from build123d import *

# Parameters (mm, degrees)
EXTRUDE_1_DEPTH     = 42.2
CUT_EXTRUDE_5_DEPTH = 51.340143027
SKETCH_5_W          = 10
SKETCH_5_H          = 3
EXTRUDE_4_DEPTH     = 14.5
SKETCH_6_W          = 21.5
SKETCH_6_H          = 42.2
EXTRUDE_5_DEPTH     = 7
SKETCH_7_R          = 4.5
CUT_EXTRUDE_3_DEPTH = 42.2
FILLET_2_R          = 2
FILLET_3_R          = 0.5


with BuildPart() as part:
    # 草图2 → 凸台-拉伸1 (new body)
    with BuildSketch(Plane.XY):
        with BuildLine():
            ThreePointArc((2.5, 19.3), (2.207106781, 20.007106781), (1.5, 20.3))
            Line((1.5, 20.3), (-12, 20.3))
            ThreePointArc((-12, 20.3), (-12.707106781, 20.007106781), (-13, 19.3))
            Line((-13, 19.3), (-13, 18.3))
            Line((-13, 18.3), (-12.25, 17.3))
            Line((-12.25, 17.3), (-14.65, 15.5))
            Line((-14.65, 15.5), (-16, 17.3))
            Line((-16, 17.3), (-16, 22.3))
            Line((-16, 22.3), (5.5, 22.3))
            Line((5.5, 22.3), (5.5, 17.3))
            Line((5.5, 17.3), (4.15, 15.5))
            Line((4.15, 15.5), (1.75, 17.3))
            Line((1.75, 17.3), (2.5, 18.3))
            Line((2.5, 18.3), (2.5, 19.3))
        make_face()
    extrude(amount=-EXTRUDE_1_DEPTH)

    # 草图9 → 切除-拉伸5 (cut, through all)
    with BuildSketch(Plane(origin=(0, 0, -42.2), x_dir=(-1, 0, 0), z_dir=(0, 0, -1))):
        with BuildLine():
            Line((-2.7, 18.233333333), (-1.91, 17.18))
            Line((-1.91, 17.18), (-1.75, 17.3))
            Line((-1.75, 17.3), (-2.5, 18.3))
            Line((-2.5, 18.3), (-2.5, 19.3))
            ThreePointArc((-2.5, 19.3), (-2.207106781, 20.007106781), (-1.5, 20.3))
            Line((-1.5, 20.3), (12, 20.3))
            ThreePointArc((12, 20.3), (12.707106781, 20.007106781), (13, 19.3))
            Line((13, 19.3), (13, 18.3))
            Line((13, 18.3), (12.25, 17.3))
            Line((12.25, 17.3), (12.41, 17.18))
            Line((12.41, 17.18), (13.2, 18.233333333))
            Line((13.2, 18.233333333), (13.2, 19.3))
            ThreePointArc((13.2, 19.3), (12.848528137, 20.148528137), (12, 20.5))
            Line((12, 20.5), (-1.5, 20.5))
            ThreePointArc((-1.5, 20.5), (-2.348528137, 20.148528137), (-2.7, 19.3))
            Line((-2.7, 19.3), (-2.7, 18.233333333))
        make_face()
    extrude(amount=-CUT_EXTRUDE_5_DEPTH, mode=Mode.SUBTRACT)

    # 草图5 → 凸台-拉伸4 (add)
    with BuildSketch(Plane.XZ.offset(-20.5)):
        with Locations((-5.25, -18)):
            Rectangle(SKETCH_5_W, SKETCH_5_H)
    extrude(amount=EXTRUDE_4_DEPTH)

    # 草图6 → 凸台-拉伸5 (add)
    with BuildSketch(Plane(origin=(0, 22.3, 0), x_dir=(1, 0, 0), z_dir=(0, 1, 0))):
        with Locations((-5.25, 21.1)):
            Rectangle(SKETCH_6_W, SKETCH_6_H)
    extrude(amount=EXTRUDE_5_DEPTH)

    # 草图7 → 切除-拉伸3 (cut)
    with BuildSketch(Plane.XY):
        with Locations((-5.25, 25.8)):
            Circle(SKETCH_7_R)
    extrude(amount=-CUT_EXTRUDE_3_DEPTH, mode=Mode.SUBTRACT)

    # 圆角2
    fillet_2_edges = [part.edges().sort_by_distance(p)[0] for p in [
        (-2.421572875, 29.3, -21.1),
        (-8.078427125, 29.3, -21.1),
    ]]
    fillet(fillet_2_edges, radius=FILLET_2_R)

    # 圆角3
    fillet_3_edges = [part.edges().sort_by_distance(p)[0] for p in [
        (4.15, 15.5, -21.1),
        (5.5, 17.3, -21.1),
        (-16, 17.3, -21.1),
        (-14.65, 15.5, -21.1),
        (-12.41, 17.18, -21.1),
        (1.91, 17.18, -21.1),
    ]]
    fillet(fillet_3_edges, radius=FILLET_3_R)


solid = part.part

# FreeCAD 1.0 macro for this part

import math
import FreeCAD as App
import Part
import Sketcher


def edges_at(feature, points):
    """Names of the edges that pass closest to the given points."""
    edges = feature.Shape.Edges
    near = lambda p: min(range(len(edges)), key=lambda i: edges[i].distToShape(Part.Vertex(*p))[0])
    return sorted({f"Edge{near(p) + 1}" for p in points})


def add_polygon(sketch, points):
    """Adds a closed chain of lines whose ends are joined by coincident constraints."""
    first, n = sketch.GeometryCount, len(points)
    for a, b in zip(points, points[1:] + points[:1]):
        sketch.addGeometry(Part.LineSegment(App.Vector(*a, 0), App.Vector(*b, 0)), False)
    for i in range(n):
        sketch.addConstraint(Sketcher.Constraint("Coincident", first + i, 2, first + (i + 1) % n, 1))

doc = App.newDocument("Part")
body = doc.addObject("PartDesign::Body", "Body")

sketch1 = doc.addObject("Sketcher::SketchObject", "Sketch")
body.addObject(sketch1)
sketch1.AttachmentSupport = (doc.XY_Plane, [""])
sketch1.MapMode = "FlatFace"
sketch1.addGeometry([
    Part.ArcOfCircle(Part.Circle(App.Vector(1.5, 19.3, 0), App.Vector(0, 0, 1), 1), math.radians(0), math.radians(90)),
    Part.LineSegment(App.Vector(2.5, 19.3, 0), App.Vector(2.5, 18.3, 0)),
    Part.LineSegment(App.Vector(2.5, 18.3, 0), App.Vector(1.8, 17.3, 0)),
    Part.LineSegment(App.Vector(1.8, 17.3, 0), App.Vector(4.2, 15.5, 0)),
    Part.LineSegment(App.Vector(4.2, 15.5, 0), App.Vector(5.5, 17.3, 0)),
    Part.LineSegment(App.Vector(5.5, 17.3, 0), App.Vector(5.5, 22.3, 0)),
    Part.LineSegment(App.Vector(5.5, 22.3, 0), App.Vector(-16, 22.3, 0)),
    Part.LineSegment(App.Vector(-16, 22.3, 0), App.Vector(-16, 17.3, 0)),
    Part.LineSegment(App.Vector(-16, 17.3, 0), App.Vector(-14.7, 15.5, 0)),
    Part.LineSegment(App.Vector(-14.7, 15.5, 0), App.Vector(-12.2, 17.3, 0)),
    Part.LineSegment(App.Vector(-12.2, 17.3, 0), App.Vector(-13, 18.3, 0)),
    Part.LineSegment(App.Vector(-13, 18.3, 0), App.Vector(-13, 19.3, 0)),
    Part.ArcOfCircle(Part.Circle(App.Vector(-12, 19.3, 0), App.Vector(0, 0, 1), 1), math.radians(90), math.radians(180)),
    Part.LineSegment(App.Vector(-12, 20.3, 0), App.Vector(1.5, 20.3, 0)),
], False)
sketch1.addConstraint([
    Sketcher.Constraint("Tangent", 0, 1, 1, 1),
    Sketcher.Constraint("Coincident", 1, 2, 2, 1),
    Sketcher.Constraint("Coincident", 2, 2, 3, 1),
    Sketcher.Constraint("Coincident", 3, 2, 4, 1),
    Sketcher.Constraint("Coincident", 4, 2, 5, 1),
    Sketcher.Constraint("Coincident", 5, 2, 6, 1),
    Sketcher.Constraint("Coincident", 6, 2, 7, 1),
    Sketcher.Constraint("Coincident", 7, 2, 8, 1),
    Sketcher.Constraint("Coincident", 8, 2, 9, 1),
    Sketcher.Constraint("Coincident", 9, 2, 10, 1),
    Sketcher.Constraint("Coincident", 10, 2, 11, 1),
    Sketcher.Constraint("Tangent", 11, 2, 12, 2),
    Sketcher.Constraint("Tangent", 12, 1, 13, 1),
    Sketcher.Constraint("Tangent", 13, 2, 0, 2),
    Sketcher.Constraint("Vertical", 1),
    Sketcher.Constraint("Vertical", 5),
    Sketcher.Constraint("Horizontal", 6),
    Sketcher.Constraint("Vertical", 7),
    Sketcher.Constraint("Vertical", 11),
    Sketcher.Constraint("Horizontal", 13),
    Sketcher.Constraint("Equal", 0, 12),
    Sketcher.Constraint("Perpendicular", 2, 3),
    Sketcher.Constraint("Perpendicular", 3, 4),
    Sketcher.Constraint("Perpendicular", 8, 9),
    Sketcher.Constraint("Perpendicular", 9, 10),
    Sketcher.Constraint("Horizontal", 2, 2, 4, 2),
    Sketcher.Constraint("Horizontal", 4, 2, 7, 2),
    Sketcher.Constraint("Horizontal", 3, 2, 8, 2),
    Sketcher.Constraint("Horizontal", 7, 2, 9, 2),
    Sketcher.Constraint("Horizontal", 1, 2, 10, 2),
    Sketcher.Constraint("Equal", 4, 8),
    Sketcher.Constraint("Radius", 0, 1.0),
    Sketcher.Constraint("DistanceY", 1, 2, 1, 1, 1.0),
    Sketcher.Constraint("DistanceY", 5, 1, 5, 2, 5.0),
    Sketcher.Constraint("Distance", 3, 3.0),
    Sketcher.Constraint("DistanceX", 6, 2, 6, 1, 21.5),
    Sketcher.Constraint("DistanceX", 13, 1, 13, 2, 13.5),
    Sketcher.Constraint("DistanceX", 12, 3, -1, 1, 12.0),
    Sketcher.Constraint("DistanceY", 2, 2, 1, 2, 1.0),
    Sketcher.Constraint("DistanceY", -1, 1, 0, 3, 19.3),
])
pad1 = doc.addObject("PartDesign::Pad", "Pad")
body.addObject(pad1)
pad1.Profile = sketch1
pad1.Length = 42.2
pad1.Reversed = True

sketch2 = doc.addObject("Sketcher::SketchObject", "Sketch001")
body.addObject(sketch2)
sketch2.AttachmentSupport = (doc.XY_Plane, [""])
sketch2.MapMode = "FlatFace"
sketch2.AttachmentOffset = App.Placement(App.Vector(0, 0, -42.2), App.Rotation())
sketch2.addGeometry([
    Part.LineSegment(App.Vector(2.7, 18.23, 0), App.Vector(1.91, 17.18, 0)),
    Part.LineSegment(App.Vector(1.91, 17.18, 0), App.Vector(1.75, 17.3, 0)),
    Part.LineSegment(App.Vector(1.75, 17.3, 0), App.Vector(2.5, 18.3, 0)),
    Part.LineSegment(App.Vector(2.5, 18.3, 0), App.Vector(2.5, 19.3, 0)),
    Part.ArcOfCircle(Part.Circle(App.Vector(1.5, 19.3, 0), App.Vector(0, 0, 1), 1), math.radians(0), math.radians(90)),
    Part.LineSegment(App.Vector(1.5, 20.3, 0), App.Vector(-12, 20.3, 0)),
    Part.ArcOfCircle(Part.Circle(App.Vector(-12, 19.3, 0), App.Vector(0, 0, 1), 1), math.radians(90), math.radians(180)),
    Part.LineSegment(App.Vector(-13, 19.3, 0), App.Vector(-13, 18.3, 0)),
    Part.LineSegment(App.Vector(-13, 18.3, 0), App.Vector(-12.25, 17.3, 0)),
    Part.LineSegment(App.Vector(-12.25, 17.3, 0), App.Vector(-12.41, 17.18, 0)),
    Part.LineSegment(App.Vector(-12.41, 17.18, 0), App.Vector(-13.2, 18.23, 0)),
    Part.LineSegment(App.Vector(-13.2, 18.23, 0), App.Vector(-13.2, 19.3, 0)),
    Part.ArcOfCircle(Part.Circle(App.Vector(-12, 19.3, 0), App.Vector(0, 0, 1), 1.2), math.radians(90), math.radians(180)),
    Part.LineSegment(App.Vector(-12, 20.5, 0), App.Vector(1.5, 20.5, 0)),
    Part.ArcOfCircle(Part.Circle(App.Vector(1.5, 19.3, 0), App.Vector(0, 0, 1), 1.2), math.radians(0), math.radians(90)),
    Part.LineSegment(App.Vector(2.7, 19.3, 0), App.Vector(2.7, 18.23, 0)),
], False)
sketch2.addConstraint([
    Sketcher.Constraint("Coincident", 0, 2, 1, 1),
    Sketcher.Constraint("Coincident", 1, 2, 2, 1),
    Sketcher.Constraint("Coincident", 2, 2, 3, 1),
    Sketcher.Constraint("Tangent", 3, 2, 4, 1),
    Sketcher.Constraint("Tangent", 4, 2, 5, 1),
    Sketcher.Constraint("Tangent", 5, 2, 6, 1),
    Sketcher.Constraint("Tangent", 6, 2, 7, 1),
    Sketcher.Constraint("Coincident", 7, 2, 8, 1),
    Sketcher.Constraint("Coincident", 8, 2, 9, 1),
    Sketcher.Constraint("Coincident", 9, 2, 10, 1),
    Sketcher.Constraint("Coincident", 10, 2, 11, 1),
    Sketcher.Constraint("Tangent", 11, 2, 12, 2),
    Sketcher.Constraint("Tangent", 12, 1, 13, 1),
    Sketcher.Constraint("Tangent", 13, 2, 14, 2),
    Sketcher.Constraint("Tangent", 14, 1, 15, 1),
    Sketcher.Constraint("Coincident", 15, 2, 0, 1),
    Sketcher.Constraint("Vertical", 3),
    Sketcher.Constraint("Horizontal", 5),
    Sketcher.Constraint("Vertical", 7),
    Sketcher.Constraint("Vertical", 11),
    Sketcher.Constraint("Horizontal", 13),
    Sketcher.Constraint("Vertical", 15),
    Sketcher.Constraint("Coincident", 12, 3, 6, 3),
    Sketcher.Constraint("Coincident", 14, 3, 4, 3),
    Sketcher.Constraint("Equal", 4, 6),
    Sketcher.Constraint("Perpendicular", 0, 1),
    Sketcher.Constraint("Perpendicular", 1, 2),
    Sketcher.Constraint("Perpendicular", 8, 9),
    Sketcher.Constraint("Perpendicular", 9, 10),
    Sketcher.Constraint("Horizontal", 2, 2, 7, 2),
    Sketcher.Constraint("Horizontal", 1, 2, 8, 2),
    Sketcher.Constraint("Horizontal", 0, 2, 9, 2),
    Sketcher.Constraint("Horizontal", 10, 2, 15, 2),
    Sketcher.Constraint("Radius", 4, 1.0),
    Sketcher.Constraint("Radius", 12, 1.2),
    Sketcher.Constraint("DistanceY", 3, 1, 3, 2, 1.0),
    Sketcher.Constraint("DistanceX", 5, 2, 5, 1, 13.5),
    Sketcher.Constraint("DistanceX", 6, 3, -1, 1, 12.0),
    Sketcher.Constraint("DistanceY", 1, 2, 4, 3, 2.0),
    Sketcher.Constraint("Distance", 1, 0.2),
    Sketcher.Constraint("DistanceY", -1, 1, 4, 3, 19.3),
    Sketcher.Constraint("Distance", 2, 1.25),
])
pocket1 = doc.addObject("PartDesign::Pocket", "Pocket")
body.addObject(pocket1)
pocket1.Profile = sketch2
pocket1.Type = "ThroughAll"
pocket1.Reversed = True

sketch3 = doc.addObject("Sketcher::SketchObject", "Sketch002")
body.addObject(sketch3)
sketch3.AttachmentSupport = (doc.XZ_Plane, [""])
sketch3.MapMode = "FlatFace"
sketch3.AttachmentOffset = App.Placement(App.Vector(0, 0, -20.5), App.Rotation())
add_polygon(sketch3, [(-10.2, -16.5), (-10.2, -19.5), (-0.2, -19.5), (-0.2, -16.5)])
sketch3.addConstraint([
    Sketcher.Constraint("Vertical", 0),
    Sketcher.Constraint("Horizontal", 1),
    Sketcher.Constraint("Vertical", 2),
    Sketcher.Constraint("Horizontal", 3),
    Sketcher.Constraint("DistanceX", 1, 1, 1, 2, 10.0),
    Sketcher.Constraint("DistanceY", 0, 2, 0, 1, 3.0),
    Sketcher.Constraint("DistanceY", 0, 2, -1, 1, 19.5),
    Sketcher.Constraint("DistanceX", 0, 2, -1, 1, 10.25),
])
pad2 = doc.addObject("PartDesign::Pad", "Pad001")
body.addObject(pad2)
pad2.Profile = sketch3
pad2.Length = 14.5

sketch4 = doc.addObject("Sketcher::SketchObject", "Sketch003")
body.addObject(sketch4)
sketch4.AttachmentSupport = (doc.XZ_Plane, [""])
sketch4.MapMode = "FlatFace"
sketch4.AttachmentOffset = App.Placement(App.Vector(0, 0, -22.3), App.Rotation())
add_polygon(sketch4, [(-16, -42), (-16, 0), (6, 0), (6, -42)])
sketch4.addConstraint([
    Sketcher.Constraint("Vertical", 0),
    Sketcher.Constraint("Horizontal", 1),
    Sketcher.Constraint("Vertical", 2),
    Sketcher.Constraint("Horizontal", 3),
    Sketcher.Constraint("PointOnObject", 0, 2, -1),
    Sketcher.Constraint("DistanceX", 1, 1, 1, 2, 21.5),
    Sketcher.Constraint("DistanceY", 0, 1, 0, 2, 42.2),
    Sketcher.Constraint("DistanceX", 0, 2, -1, 1, 16.0),
])
pad3 = doc.addObject("PartDesign::Pad", "Pad002")
body.addObject(pad3)
pad3.Profile = sketch4
pad3.Length = 7
pad3.Reversed = True

sketch5 = doc.addObject("Sketcher::SketchObject", "Sketch004")
body.addObject(sketch5)
sketch5.AttachmentSupport = (doc.XY_Plane, [""])
sketch5.MapMode = "FlatFace"
sketch5.addGeometry(Part.Circle(App.Vector(-5.2, 25.8, 0), App.Vector(0, 0, 1), 4.5), False)
sketch5.addConstraint([
    Sketcher.Constraint("Diameter", 0, 9.0),
    Sketcher.Constraint("DistanceY", -1, 1, 0, 3, 25.8),
    Sketcher.Constraint("DistanceX", 0, 3, -1, 1, 5.25),
])
pocket2 = doc.addObject("PartDesign::Pocket", "Pocket001")
body.addObject(pocket2)
pocket2.Profile = sketch5
pocket2.Length = 42.2
doc.recompute()

fillet = doc.addObject("PartDesign::Fillet", "Fillet")
body.addObject(fillet)
fillet.Base = (pocket2, edges_at(pocket2, [(-2.422, 29.3, -21.1), (-8.078, 29.3, -21.1)]))
fillet.Radius = 2
doc.recompute()

fillet2 = doc.addObject("PartDesign::Fillet", "Fillet001")
body.addObject(fillet2)
fillet2.Base = (fillet, edges_at(fillet, [
    (4.15, 15.5, -21.1),
    (5.5, 17.3, -21.1),
    (-16, 17.3, -21.1),
    (-14.65, 15.5, -21.1),
    (-12.41, 17.18, -21.1),
    (1.91, 17.18, -21.1),
]))
fillet2.Radius = 0.5

doc.recompute()
